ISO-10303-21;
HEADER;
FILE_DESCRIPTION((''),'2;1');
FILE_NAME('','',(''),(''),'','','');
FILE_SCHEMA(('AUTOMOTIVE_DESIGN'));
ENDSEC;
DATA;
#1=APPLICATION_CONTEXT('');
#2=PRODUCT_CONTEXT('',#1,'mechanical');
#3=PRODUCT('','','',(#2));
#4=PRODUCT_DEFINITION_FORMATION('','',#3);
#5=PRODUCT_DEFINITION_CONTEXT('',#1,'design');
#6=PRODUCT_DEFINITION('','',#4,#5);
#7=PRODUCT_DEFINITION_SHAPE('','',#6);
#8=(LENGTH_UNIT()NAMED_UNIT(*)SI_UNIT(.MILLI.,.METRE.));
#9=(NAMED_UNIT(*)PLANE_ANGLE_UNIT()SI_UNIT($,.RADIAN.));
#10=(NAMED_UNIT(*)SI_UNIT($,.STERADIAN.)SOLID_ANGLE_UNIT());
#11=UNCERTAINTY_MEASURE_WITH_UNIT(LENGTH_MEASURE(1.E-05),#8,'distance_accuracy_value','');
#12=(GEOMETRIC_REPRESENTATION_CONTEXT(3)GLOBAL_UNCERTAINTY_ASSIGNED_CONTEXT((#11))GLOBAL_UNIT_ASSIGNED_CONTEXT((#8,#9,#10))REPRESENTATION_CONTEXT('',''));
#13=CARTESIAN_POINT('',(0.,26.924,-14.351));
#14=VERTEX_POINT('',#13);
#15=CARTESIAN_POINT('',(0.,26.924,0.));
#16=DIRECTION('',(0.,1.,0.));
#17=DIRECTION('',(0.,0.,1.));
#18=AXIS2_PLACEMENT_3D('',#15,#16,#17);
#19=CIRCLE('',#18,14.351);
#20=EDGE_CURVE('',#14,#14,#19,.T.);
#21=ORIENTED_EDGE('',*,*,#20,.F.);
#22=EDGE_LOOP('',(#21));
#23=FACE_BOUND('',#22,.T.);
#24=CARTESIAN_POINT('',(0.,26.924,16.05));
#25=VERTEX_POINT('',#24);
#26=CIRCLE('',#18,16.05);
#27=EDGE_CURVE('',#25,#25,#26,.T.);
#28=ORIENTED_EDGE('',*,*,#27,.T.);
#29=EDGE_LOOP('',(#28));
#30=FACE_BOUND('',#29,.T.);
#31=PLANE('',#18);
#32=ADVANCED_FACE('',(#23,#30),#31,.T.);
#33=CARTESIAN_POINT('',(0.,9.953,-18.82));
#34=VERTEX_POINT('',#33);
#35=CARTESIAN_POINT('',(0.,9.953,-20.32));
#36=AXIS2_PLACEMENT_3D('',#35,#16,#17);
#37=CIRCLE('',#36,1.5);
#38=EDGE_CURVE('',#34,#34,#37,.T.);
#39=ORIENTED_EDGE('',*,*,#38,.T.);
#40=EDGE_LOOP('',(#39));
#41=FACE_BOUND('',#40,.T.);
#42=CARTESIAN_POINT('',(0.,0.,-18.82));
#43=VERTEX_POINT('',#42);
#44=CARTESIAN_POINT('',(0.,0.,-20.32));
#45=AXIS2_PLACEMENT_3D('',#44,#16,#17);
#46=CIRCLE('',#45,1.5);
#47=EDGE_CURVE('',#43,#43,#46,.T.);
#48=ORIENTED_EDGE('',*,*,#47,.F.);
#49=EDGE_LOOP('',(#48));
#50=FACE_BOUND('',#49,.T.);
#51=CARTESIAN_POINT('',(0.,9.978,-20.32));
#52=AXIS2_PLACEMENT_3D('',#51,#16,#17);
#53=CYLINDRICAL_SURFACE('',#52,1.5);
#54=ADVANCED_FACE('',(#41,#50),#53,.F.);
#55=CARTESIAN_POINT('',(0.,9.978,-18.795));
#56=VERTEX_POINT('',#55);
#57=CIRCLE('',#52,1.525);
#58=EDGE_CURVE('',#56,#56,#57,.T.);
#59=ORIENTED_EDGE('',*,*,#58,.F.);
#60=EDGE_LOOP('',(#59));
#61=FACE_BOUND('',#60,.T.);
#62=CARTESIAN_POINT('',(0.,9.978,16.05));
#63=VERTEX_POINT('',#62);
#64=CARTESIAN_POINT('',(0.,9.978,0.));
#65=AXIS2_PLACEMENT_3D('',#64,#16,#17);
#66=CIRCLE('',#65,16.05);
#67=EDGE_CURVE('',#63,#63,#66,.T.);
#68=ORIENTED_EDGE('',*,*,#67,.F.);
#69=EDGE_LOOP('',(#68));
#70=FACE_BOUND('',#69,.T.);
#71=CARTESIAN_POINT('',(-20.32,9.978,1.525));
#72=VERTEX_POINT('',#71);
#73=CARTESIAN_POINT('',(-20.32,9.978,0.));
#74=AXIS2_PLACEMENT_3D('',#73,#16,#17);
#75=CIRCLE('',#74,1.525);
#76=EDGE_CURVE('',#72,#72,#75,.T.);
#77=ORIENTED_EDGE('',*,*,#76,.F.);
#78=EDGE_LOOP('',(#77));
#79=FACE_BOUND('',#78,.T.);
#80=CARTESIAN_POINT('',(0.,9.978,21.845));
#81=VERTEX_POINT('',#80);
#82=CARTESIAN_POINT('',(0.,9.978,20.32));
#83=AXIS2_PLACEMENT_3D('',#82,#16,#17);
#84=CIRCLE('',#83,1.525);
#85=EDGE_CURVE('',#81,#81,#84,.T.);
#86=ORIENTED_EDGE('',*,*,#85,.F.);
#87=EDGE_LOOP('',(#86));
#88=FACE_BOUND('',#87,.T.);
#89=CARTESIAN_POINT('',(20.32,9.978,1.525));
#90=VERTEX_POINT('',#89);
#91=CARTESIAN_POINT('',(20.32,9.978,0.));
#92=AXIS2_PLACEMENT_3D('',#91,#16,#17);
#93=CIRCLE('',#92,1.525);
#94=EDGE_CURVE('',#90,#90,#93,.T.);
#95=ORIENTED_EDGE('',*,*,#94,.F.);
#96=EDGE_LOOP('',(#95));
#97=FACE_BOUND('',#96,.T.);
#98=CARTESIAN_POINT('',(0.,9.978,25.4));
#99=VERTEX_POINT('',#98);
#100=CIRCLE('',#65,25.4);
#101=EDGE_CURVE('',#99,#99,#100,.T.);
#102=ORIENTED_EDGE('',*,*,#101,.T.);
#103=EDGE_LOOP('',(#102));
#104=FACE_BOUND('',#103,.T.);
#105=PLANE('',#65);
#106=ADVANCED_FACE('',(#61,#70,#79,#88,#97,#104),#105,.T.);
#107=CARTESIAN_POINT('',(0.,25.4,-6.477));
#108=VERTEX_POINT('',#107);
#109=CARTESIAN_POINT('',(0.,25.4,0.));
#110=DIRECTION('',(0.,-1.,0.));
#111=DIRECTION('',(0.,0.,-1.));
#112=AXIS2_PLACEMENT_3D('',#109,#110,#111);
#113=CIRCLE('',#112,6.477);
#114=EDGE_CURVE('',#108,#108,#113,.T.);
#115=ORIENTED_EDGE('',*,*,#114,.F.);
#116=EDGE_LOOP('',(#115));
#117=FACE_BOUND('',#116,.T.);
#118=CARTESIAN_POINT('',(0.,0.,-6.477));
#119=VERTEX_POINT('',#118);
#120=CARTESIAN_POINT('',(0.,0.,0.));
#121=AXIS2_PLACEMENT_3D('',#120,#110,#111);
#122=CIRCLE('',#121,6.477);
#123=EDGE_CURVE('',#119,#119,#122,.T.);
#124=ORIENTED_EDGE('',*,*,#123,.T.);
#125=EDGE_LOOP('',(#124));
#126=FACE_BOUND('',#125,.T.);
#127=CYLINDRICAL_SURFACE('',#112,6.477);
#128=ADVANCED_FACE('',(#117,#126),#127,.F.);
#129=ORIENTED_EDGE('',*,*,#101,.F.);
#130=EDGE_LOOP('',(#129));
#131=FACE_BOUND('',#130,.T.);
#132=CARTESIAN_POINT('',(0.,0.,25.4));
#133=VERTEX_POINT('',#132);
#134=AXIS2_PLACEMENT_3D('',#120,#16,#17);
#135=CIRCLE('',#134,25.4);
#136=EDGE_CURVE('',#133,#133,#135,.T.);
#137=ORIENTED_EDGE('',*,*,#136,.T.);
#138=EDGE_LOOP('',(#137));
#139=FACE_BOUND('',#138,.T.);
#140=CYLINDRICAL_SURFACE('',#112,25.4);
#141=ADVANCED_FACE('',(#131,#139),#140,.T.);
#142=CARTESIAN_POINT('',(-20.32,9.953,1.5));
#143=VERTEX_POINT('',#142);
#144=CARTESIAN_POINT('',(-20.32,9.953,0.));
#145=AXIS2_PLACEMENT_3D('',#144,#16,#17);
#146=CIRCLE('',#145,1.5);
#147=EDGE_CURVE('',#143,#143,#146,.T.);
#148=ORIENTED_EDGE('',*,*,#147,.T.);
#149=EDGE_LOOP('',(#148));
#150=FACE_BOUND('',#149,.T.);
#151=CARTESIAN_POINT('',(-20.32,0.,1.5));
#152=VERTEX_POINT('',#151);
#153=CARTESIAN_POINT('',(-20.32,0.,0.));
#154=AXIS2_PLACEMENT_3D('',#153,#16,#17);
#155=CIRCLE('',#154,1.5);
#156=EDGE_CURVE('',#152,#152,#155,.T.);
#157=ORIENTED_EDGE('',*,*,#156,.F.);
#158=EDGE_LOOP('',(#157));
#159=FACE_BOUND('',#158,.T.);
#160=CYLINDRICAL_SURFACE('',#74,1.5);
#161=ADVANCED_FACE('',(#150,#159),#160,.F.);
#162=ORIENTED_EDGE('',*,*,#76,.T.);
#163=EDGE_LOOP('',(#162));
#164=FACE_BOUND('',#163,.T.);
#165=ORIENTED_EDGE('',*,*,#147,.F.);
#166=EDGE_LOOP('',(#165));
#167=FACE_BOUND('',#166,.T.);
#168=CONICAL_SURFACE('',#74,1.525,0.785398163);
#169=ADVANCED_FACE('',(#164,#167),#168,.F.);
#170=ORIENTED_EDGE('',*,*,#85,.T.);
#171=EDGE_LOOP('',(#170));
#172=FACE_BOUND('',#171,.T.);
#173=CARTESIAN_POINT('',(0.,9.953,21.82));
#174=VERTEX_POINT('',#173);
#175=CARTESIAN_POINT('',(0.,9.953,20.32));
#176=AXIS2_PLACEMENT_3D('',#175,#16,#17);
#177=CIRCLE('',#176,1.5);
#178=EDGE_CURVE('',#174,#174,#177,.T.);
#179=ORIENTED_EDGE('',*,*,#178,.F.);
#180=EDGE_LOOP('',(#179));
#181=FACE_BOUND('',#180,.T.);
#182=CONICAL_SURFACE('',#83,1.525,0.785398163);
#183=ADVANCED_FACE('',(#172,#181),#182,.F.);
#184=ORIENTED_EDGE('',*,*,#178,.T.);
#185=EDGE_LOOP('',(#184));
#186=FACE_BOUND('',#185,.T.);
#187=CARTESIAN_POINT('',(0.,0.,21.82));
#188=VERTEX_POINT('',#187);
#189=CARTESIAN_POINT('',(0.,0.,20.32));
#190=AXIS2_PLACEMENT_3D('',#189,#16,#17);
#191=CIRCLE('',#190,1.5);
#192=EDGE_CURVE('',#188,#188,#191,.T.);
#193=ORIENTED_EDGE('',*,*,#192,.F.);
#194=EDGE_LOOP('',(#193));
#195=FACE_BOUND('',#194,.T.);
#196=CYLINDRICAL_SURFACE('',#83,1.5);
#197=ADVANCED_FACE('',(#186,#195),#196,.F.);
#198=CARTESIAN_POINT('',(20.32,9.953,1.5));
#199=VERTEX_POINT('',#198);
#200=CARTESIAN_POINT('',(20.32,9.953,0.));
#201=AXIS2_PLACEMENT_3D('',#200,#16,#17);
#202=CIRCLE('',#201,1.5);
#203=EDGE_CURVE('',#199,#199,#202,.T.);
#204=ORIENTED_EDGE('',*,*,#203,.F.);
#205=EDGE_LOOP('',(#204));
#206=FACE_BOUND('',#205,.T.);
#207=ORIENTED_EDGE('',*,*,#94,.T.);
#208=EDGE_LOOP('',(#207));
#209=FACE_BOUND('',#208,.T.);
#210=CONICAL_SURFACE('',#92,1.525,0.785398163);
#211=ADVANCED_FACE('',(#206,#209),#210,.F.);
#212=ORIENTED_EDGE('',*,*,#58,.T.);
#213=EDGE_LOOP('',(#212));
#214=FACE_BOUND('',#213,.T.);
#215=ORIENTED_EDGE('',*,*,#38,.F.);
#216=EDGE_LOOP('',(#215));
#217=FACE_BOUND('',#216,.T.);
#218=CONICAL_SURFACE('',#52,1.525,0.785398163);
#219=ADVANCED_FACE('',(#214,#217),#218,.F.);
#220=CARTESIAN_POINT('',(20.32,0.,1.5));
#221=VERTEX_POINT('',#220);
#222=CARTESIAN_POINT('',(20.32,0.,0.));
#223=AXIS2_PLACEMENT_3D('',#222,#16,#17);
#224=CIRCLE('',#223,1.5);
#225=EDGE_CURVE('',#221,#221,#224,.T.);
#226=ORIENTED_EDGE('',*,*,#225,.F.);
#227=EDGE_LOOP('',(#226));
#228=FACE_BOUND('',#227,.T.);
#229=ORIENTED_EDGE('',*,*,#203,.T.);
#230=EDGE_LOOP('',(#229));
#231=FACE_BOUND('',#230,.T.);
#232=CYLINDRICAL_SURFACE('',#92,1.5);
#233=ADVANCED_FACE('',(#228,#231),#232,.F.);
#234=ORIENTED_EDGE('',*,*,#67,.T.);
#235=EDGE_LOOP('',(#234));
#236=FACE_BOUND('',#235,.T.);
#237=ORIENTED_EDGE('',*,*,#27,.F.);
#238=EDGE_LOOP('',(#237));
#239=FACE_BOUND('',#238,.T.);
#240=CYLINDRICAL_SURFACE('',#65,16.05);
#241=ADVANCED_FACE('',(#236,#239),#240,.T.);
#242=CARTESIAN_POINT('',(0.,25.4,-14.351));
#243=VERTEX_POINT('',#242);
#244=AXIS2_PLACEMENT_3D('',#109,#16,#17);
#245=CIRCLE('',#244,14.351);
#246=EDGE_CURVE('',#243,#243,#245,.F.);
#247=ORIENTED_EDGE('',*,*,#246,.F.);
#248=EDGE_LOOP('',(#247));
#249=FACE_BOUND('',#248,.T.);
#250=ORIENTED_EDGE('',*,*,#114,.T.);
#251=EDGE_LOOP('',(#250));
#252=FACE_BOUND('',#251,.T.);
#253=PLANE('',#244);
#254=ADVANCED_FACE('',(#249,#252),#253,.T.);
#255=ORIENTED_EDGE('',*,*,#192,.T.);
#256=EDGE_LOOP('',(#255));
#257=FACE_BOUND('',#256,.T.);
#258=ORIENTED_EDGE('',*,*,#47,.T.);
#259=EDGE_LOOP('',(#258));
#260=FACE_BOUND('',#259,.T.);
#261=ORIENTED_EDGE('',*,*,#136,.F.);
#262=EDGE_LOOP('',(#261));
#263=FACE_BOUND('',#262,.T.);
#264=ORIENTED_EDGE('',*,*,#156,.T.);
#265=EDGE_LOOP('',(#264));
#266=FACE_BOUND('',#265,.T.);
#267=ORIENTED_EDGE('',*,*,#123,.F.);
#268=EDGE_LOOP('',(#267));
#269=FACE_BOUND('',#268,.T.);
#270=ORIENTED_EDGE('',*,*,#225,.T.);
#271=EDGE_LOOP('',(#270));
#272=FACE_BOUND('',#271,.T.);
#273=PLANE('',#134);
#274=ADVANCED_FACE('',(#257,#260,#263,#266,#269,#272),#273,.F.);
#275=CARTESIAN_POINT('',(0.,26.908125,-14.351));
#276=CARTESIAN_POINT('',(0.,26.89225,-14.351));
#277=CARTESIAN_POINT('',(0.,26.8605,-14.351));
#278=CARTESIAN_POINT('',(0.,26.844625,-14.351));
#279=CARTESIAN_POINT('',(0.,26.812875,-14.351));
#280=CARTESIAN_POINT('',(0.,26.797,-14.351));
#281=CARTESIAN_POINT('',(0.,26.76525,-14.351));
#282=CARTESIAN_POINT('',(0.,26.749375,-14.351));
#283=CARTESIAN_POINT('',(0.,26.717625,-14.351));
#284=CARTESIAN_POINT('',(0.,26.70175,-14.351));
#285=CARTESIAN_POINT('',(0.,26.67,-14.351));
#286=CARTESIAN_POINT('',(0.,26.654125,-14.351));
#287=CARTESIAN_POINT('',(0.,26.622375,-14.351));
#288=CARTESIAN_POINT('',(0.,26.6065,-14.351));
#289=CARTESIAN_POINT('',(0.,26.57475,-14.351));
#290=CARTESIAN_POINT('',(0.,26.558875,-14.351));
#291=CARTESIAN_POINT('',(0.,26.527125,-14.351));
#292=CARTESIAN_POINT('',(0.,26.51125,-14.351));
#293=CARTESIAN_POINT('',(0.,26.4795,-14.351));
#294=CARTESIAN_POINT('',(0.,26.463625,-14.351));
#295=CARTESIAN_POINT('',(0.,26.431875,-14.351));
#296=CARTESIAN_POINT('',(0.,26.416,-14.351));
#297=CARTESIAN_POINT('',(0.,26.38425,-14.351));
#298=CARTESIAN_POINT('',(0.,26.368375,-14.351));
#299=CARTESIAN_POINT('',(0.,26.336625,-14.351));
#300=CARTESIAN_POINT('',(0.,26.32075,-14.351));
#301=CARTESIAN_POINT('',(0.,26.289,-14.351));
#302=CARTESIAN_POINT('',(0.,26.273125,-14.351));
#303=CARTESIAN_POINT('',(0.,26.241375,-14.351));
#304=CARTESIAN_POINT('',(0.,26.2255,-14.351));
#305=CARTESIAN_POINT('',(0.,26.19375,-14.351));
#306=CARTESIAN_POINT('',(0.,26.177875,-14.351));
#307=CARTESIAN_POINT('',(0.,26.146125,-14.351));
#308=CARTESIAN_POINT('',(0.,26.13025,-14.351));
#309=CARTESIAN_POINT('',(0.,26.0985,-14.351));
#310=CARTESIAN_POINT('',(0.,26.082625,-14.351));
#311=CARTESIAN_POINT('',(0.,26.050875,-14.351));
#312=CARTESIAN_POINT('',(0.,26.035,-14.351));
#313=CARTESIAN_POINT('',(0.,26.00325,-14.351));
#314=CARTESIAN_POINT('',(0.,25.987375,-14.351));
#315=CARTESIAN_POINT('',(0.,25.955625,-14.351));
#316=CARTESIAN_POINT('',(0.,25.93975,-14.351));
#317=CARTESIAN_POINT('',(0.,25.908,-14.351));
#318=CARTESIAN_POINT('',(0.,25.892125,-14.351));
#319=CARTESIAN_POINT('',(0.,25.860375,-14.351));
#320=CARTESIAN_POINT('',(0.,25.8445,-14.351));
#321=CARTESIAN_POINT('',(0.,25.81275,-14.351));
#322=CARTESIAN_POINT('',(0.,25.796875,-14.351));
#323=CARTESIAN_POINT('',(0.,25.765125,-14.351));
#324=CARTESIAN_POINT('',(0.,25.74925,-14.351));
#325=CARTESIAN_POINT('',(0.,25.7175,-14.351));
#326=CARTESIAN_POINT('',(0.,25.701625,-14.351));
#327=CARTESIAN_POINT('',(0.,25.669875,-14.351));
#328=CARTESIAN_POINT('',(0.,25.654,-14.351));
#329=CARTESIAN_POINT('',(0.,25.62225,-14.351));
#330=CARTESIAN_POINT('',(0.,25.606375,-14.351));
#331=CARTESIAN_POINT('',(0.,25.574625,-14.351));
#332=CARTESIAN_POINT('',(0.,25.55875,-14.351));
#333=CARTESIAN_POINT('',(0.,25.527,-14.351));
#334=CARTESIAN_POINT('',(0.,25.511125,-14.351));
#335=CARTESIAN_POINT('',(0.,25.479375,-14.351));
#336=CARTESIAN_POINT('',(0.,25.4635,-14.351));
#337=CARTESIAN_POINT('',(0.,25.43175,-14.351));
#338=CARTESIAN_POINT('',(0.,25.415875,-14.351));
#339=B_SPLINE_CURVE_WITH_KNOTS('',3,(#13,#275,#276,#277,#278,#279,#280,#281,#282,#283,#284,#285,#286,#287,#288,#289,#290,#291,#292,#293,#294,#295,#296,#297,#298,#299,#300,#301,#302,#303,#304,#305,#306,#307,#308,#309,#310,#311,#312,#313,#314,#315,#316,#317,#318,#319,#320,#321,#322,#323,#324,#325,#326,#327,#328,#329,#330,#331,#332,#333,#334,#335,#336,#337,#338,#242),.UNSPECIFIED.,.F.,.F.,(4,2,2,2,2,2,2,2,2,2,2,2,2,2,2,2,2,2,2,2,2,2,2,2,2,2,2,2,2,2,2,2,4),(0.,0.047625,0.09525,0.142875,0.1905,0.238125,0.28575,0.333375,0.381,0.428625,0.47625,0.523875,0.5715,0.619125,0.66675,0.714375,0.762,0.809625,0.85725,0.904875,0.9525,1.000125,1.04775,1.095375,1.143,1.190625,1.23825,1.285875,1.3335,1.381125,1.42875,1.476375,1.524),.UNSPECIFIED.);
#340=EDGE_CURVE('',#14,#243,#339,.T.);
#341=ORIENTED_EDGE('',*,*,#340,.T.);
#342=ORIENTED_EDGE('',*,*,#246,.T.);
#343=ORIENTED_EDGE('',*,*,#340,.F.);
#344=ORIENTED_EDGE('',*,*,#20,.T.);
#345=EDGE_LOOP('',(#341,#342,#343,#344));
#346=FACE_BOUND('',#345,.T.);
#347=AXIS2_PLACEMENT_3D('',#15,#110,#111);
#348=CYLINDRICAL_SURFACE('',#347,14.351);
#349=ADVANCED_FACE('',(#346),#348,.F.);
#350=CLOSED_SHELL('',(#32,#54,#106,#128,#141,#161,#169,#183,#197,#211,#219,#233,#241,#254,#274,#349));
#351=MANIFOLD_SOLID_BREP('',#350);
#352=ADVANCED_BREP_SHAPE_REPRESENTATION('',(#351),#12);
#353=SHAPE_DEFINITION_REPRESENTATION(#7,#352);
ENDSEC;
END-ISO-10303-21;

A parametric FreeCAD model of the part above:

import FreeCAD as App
import Part
import Sketcher

V = App.Vector
Q = App.Units.Quantity


def add_polygon(sketch, points):
    """Adds a closed chain of lines whose ends are joined by coincident constraints."""
    first, n = sketch.GeometryCount, len(points)
    for a, b in zip(points, points[1:] + points[:1]):
        sketch.addGeometry(Part.LineSegment(App.Vector(*a, 0), App.Vector(*b, 0)), False)
    for i in range(n):
        sketch.addConstraint(Sketcher.Constraint("Coincident", first + i, 2, first + (i + 1) % n, 1))

doc = App.newDocument("Part")
body = doc.addObject("PartDesign::Body", "Body")

sketch1 = doc.addObject("Sketcher::SketchObject", "Sketch")
body.addObject(sketch1)
sketch1.AttachmentSupport = (doc.XZ_Plane, [""])
sketch1.MapMode = "FlatFace"
sketch1.addGeometry(Part.Circle(V(0, 0, 0), V(0, 0, 1), 25), False)
sketch1.addConstraint(Sketcher.Constraint("Coincident", 0, 3, -1, 1))
sketch1.addConstraint(Sketcher.Constraint("Diameter", 0, Q("2 in")))
pad1 = doc.addObject("PartDesign::Pad", "Pad")
body.addObject(pad1)
pad1.Profile = sketch1
pad1.Length = Q("1 in")
pad1.Reversed = True

sketch2 = doc.addObject("Sketcher::SketchObject", "Sketch001")
body.addObject(sketch2)
sketch2.AttachmentSupport = (doc.XZ_Plane, [""])
sketch2.MapMode = "FlatFace"
sketch2.AttachmentOffset = App.Placement(V(0, 0, -1 * 25.4), App.Rotation())
add_polygon(sketch2, [(-34, -34), (-34, 34), (34, 34), (34, -34)])
sketch2.addGeometry(Part.Circle(V(0, 0, 0), V(0, 0, 1), 16), False)
sketch2.addConstraint(Sketcher.Constraint("Vertical", 0))
sketch2.addConstraint(Sketcher.Constraint("Horizontal", 1))
sketch2.addConstraint(Sketcher.Constraint("Vertical", 2))
sketch2.addConstraint(Sketcher.Constraint("Horizontal", 3))
sketch2.addConstraint(Sketcher.Constraint("Coincident", 4, 3, -1, 1))
sketch2.addConstraint(Sketcher.Constraint("Symmetric", 0, 2, 2, 2, -1, 1))
sketch2.addConstraint(Sketcher.Constraint("Equal", 3, 0))
sketch2.addConstraint(Sketcher.Constraint("Diameter", 4, 32.1))
sketch2.addConstraint(Sketcher.Constraint("DistanceX", 1, 1, 1, 2, 68.04))
pocket1 = doc.addObject("PartDesign::Pocket", "Pocket")
body.addObject(pocket1)
pocket1.Profile = sketch2
pocket1.Length = 15.422
pocket1.Reversed = True

sketch3 = doc.addObject("Sketcher::SketchObject", "Sketch002")
body.addObject(sketch3)
sketch3.AttachmentSupport = (doc.XZ_Plane, [""])
sketch3.MapMode = "FlatFace"
sketch3.addGeometry(Part.Circle(V(0, 0, 0), V(0, 0, 1), 6), False)
sketch3.addConstraint(Sketcher.Constraint("Coincident", 0, 3, -1, 1))
sketch3.addConstraint(Sketcher.Constraint("Diameter", 0, Q("0.51 in")))
pocket2 = doc.addObject("PartDesign::Pocket", "Pocket001")
body.addObject(pocket2)
pocket2.Profile = sketch3
pocket2.Type = "ThroughAll"

sketch4 = doc.addObject("Sketcher::SketchObject", "Sketch003")
body.addObject(sketch4)
sketch4.AttachmentSupport = (doc.XZ_Plane, [""])
sketch4.MapMode = "FlatFace"
sketch4.AttachmentOffset = App.Placement(V(0, 0, -1.06 * 25.4), App.Rotation())
sketch4.addGeometry(Part.Circle(V(0, 0, 0), V(0, 0, 1), 16), False)
sketch4.addGeometry(Part.Circle(V(0, 0, 0), V(0, 0, 1), 14), False)
sketch4.addConstraint(Sketcher.Constraint("Coincident", 0, 3, -1, 1))
sketch4.addConstraint(Sketcher.Constraint("Coincident", 1, 3, -1, 1))
sketch4.addConstraint(Sketcher.Constraint("Diameter", 1, Q("1.13 in")))
sketch4.addConstraint(Sketcher.Constraint("Diameter", 0, 32.1))
pad2 = doc.addObject("PartDesign::Pad", "Pad001")
body.addObject(pad2)
pad2.Profile = sketch4
pad2.Length = Q("0.06 in")

sketch5 = doc.addObject("Sketcher::SketchObject", "Sketch004")
body.addObject(sketch5)
sketch5.AttachmentSupport = (doc.XZ_Plane, [""])
sketch5.MapMode = "FlatFace"
sketch5.AttachmentOffset = App.Placement(V(0, 0, -9.978), App.Rotation())
sketch5.addGeometry(Part.Circle(V(0, -20.3, 0), V(0, 0, 1), 1.5), False)
sketch5.addConstraint(Sketcher.Constraint("PointOnObject", 0, 3, -2))
sketch5.addConstraint(Sketcher.Constraint("DistanceY", 0, 3, -1, 1, Q("0.8 in")))
sketch5.addConstraint(Sketcher.Constraint("Diameter", 0, 3.0))
doc.recompute()
hole = doc.addObject("PartDesign::Hole", "Hole")
body.addObject(hole)
hole.Profile = sketch5
hole.ThreadType = "None"
hole.Diameter = 3
hole.DepthType = "ThroughAll"
hole.HoleCutType = "Countersink"
hole.HoleCutDiameter = 3.05
hole.HoleCutCountersinkAngle = 90
hole.Reversed = True
doc.recompute()

polarpattern = doc.addObject("PartDesign::PolarPattern", "PolarPattern")
body.addObject(polarpattern)
polarpattern.Originals = [hole]
polarpattern.Axis = (doc.Y_Axis, [""])
polarpattern.Angle = 360
polarpattern.Occurrences = 4
body.Tip = polarpattern

doc.recompute()
